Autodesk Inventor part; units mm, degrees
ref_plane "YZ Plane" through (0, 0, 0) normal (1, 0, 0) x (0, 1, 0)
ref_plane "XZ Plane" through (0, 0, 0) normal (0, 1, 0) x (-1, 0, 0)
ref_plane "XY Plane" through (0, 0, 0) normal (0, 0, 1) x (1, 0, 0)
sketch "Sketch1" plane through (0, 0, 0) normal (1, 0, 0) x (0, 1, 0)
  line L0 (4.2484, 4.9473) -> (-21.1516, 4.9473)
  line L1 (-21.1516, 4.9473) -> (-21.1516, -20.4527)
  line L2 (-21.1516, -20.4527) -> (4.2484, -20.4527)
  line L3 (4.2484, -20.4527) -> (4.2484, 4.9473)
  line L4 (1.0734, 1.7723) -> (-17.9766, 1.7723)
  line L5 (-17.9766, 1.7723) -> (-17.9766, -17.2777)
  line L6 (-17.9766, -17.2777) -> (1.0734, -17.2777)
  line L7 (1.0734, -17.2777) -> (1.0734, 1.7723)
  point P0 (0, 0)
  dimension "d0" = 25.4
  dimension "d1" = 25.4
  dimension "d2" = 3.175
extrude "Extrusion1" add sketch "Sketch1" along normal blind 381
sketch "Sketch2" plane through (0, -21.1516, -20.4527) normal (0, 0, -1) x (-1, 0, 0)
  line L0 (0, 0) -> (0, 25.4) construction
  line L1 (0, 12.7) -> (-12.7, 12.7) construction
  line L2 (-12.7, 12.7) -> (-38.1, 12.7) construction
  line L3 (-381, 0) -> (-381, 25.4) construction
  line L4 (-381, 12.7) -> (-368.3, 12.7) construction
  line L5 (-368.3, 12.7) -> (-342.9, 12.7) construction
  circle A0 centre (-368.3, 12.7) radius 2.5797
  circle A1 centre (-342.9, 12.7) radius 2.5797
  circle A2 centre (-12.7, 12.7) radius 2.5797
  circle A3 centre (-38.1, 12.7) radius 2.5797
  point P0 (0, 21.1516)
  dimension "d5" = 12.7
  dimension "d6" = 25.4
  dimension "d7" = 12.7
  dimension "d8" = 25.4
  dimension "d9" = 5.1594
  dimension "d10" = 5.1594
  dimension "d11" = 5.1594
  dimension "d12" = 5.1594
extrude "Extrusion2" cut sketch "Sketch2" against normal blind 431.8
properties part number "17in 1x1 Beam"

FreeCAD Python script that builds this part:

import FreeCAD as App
import Part
import Sketcher

V = App.Vector
Q = App.Units.Quantity

doc = App.newDocument("Part")
params = doc.addObject("Spreadsheet::Sheet", "Params")
for row, (alias, value) in enumerate([
    ("sketch1_width", "1 in"),
    ("pad1_length", "15 in"),
    ("sketch2_diameter", "0.203126 in"),
    ("pocket1_length", "17 in"),
], start=1):
    params.set(f"A{row}", alias)
    params.set(f"B{row}", "=" + value)
    params.setAlias(f"B{row}", alias)

body = doc.addObject("PartDesign::Body", "Body")

# Sketch on YZ plane
sketch1 = body.newObject("Sketcher::SketchObject", "Sketch")
sketch1.AttachmentSupport = (doc.getObject("YZ_Plane"), [""])
sketch1.MapMode = "FlatFace"
sketch1.addGeometry([
    Part.LineSegment(V(4.2484, -20.4527, 0), V(4.2484, 4.9473, 0)),  # 0
    Part.LineSegment(V(4.2484, 4.9473, 0), V(-21.1516, 4.9473, 0)),  # 1
    Part.LineSegment(V(-21.1516, 4.9473, 0), V(-21.1516, -20.4527, 0)),  # 2
    Part.LineSegment(V(-21.1516, -20.4527, 0), V(4.2484, -20.4527, 0)),  # 3
    Part.LineSegment(V(-17.9766, 1.7723, 0), V(1.0734, 1.7723, 0)),  # 4
    Part.LineSegment(V(1.0734, 1.7723, 0), V(1.0734, -17.2777, 0)),  # 5
    Part.LineSegment(V(1.0734, -17.2777, 0), V(-17.9766, -17.2777, 0)),  # 6
    Part.LineSegment(V(-17.9766, -17.2777, 0), V(-17.9766, 1.7723, 0)),  # 7
], False)
sketch1.addConstraint([
    Sketcher.Constraint("Coincident", 0, 2, 1, 1),
    Sketcher.Constraint("Coincident", 1, 2, 2, 1),
    Sketcher.Constraint("Coincident", 2, 2, 3, 1),
    Sketcher.Constraint("Coincident", 3, 2, 0, 1),
    Sketcher.Constraint("Coincident", 4, 2, 5, 1),
    Sketcher.Constraint("Coincident", 5, 2, 6, 1),
    Sketcher.Constraint("Coincident", 6, 2, 7, 1),
    Sketcher.Constraint("Coincident", 7, 2, 4, 1),
    Sketcher.Constraint("Vertical", 0),
    Sketcher.Constraint("Horizontal", 1),
    Sketcher.Constraint("Vertical", 2),
    Sketcher.Constraint("Horizontal", 3),
    Sketcher.Constraint("Horizontal", 4),
    Sketcher.Constraint("Vertical", 5),
    Sketcher.Constraint("Horizontal", 6),
    Sketcher.Constraint("Vertical", 7),
    Sketcher.Constraint("Equal", 3, 0),
    Sketcher.Constraint("Equal", 6, 5),
    Sketcher.Constraint("DistanceX", 1, 2, 1, 1, Q("1 in")),
    Sketcher.Constraint("DistanceX", 4, 2, 0, 2, Q("0.125 in")),
    Sketcher.Constraint("DistanceY", 4, 2, 0, 2, Q("0.125 in")),
    Sketcher.Constraint("DistanceY", 3, 2, 5, 2, Q("0.125 in")),
    Sketcher.Constraint("DistanceX", -1, 1, 0, 2, 4.2484),
    Sketcher.Constraint("DistanceY", -1, 1, 0, 2, 4.9473),
])
sketch1.setExpression("Constraints[18]", "Params.sketch1_width")
pad1 = body.newObject("PartDesign::Pad", "Pad")
pad1.Profile = sketch1
pad1.setExpression("Length", "Params.pad1_length")

# Sketch on XY plane
sketch2 = body.newObject("Sketcher::SketchObject", "Sketch001")
sketch2.AttachmentSupport = (doc.getObject("XY_Plane"), [""])
sketch2.MapMode = "FlatFace"
sketch2.AttachmentOffset = App.Placement(V(0, 0, -20.4527), App.Rotation())
sketch2.addGeometry([
    Part.Circle(V(368.3, -8.4516, 0), V(0, 0, 1), 2.5797),
    Part.Circle(V(342.9, -8.4516, 0), V(0, 0, 1), 2.5797),
    Part.Circle(V(12.7, -8.4516, 0), V(0, 0, 1), 2.5797),
    Part.Circle(V(38.1, -8.4516, 0), V(0, 0, 1), 2.5797),
], False)
sketch2.addConstraint([
    Sketcher.Constraint("Equal", 0, 1),
    Sketcher.Constraint("Equal", 1, 2),
    Sketcher.Constraint("Equal", 2, 3),
    Sketcher.Constraint("Horizontal", 0, 3, 1, 3),
    Sketcher.Constraint("Horizontal", 1, 3, 2, 3),
    Sketcher.Constraint("Horizontal", 2, 3, 3, 3),
    Sketcher.Constraint("Diameter", 0, Q("0.203126 in")),
    Sketcher.Constraint("DistanceX", 1, 3, 0, 3, Q("1 in")),
    Sketcher.Constraint("DistanceX", 2, 3, 3, 3, Q("1 in")),
    Sketcher.Constraint("DistanceX", -1, 1, 2, 3, Q("0.5 in")),
    Sketcher.Constraint("DistanceX", 2, 3, 1, 3, Q("13 in")),
    Sketcher.Constraint("DistanceY", 0, 3, -1, 1, 8.4516),
])
sketch2.setExpression("Constraints[6]", "Params.sketch2_diameter")
pocket1 = body.newObject("PartDesign::Pocket", "Pocket")
pocket1.Profile = sketch2
pocket1.setExpression("Length", "Params.pocket1_length")
pocket1.Reversed = True

doc.recompute()
